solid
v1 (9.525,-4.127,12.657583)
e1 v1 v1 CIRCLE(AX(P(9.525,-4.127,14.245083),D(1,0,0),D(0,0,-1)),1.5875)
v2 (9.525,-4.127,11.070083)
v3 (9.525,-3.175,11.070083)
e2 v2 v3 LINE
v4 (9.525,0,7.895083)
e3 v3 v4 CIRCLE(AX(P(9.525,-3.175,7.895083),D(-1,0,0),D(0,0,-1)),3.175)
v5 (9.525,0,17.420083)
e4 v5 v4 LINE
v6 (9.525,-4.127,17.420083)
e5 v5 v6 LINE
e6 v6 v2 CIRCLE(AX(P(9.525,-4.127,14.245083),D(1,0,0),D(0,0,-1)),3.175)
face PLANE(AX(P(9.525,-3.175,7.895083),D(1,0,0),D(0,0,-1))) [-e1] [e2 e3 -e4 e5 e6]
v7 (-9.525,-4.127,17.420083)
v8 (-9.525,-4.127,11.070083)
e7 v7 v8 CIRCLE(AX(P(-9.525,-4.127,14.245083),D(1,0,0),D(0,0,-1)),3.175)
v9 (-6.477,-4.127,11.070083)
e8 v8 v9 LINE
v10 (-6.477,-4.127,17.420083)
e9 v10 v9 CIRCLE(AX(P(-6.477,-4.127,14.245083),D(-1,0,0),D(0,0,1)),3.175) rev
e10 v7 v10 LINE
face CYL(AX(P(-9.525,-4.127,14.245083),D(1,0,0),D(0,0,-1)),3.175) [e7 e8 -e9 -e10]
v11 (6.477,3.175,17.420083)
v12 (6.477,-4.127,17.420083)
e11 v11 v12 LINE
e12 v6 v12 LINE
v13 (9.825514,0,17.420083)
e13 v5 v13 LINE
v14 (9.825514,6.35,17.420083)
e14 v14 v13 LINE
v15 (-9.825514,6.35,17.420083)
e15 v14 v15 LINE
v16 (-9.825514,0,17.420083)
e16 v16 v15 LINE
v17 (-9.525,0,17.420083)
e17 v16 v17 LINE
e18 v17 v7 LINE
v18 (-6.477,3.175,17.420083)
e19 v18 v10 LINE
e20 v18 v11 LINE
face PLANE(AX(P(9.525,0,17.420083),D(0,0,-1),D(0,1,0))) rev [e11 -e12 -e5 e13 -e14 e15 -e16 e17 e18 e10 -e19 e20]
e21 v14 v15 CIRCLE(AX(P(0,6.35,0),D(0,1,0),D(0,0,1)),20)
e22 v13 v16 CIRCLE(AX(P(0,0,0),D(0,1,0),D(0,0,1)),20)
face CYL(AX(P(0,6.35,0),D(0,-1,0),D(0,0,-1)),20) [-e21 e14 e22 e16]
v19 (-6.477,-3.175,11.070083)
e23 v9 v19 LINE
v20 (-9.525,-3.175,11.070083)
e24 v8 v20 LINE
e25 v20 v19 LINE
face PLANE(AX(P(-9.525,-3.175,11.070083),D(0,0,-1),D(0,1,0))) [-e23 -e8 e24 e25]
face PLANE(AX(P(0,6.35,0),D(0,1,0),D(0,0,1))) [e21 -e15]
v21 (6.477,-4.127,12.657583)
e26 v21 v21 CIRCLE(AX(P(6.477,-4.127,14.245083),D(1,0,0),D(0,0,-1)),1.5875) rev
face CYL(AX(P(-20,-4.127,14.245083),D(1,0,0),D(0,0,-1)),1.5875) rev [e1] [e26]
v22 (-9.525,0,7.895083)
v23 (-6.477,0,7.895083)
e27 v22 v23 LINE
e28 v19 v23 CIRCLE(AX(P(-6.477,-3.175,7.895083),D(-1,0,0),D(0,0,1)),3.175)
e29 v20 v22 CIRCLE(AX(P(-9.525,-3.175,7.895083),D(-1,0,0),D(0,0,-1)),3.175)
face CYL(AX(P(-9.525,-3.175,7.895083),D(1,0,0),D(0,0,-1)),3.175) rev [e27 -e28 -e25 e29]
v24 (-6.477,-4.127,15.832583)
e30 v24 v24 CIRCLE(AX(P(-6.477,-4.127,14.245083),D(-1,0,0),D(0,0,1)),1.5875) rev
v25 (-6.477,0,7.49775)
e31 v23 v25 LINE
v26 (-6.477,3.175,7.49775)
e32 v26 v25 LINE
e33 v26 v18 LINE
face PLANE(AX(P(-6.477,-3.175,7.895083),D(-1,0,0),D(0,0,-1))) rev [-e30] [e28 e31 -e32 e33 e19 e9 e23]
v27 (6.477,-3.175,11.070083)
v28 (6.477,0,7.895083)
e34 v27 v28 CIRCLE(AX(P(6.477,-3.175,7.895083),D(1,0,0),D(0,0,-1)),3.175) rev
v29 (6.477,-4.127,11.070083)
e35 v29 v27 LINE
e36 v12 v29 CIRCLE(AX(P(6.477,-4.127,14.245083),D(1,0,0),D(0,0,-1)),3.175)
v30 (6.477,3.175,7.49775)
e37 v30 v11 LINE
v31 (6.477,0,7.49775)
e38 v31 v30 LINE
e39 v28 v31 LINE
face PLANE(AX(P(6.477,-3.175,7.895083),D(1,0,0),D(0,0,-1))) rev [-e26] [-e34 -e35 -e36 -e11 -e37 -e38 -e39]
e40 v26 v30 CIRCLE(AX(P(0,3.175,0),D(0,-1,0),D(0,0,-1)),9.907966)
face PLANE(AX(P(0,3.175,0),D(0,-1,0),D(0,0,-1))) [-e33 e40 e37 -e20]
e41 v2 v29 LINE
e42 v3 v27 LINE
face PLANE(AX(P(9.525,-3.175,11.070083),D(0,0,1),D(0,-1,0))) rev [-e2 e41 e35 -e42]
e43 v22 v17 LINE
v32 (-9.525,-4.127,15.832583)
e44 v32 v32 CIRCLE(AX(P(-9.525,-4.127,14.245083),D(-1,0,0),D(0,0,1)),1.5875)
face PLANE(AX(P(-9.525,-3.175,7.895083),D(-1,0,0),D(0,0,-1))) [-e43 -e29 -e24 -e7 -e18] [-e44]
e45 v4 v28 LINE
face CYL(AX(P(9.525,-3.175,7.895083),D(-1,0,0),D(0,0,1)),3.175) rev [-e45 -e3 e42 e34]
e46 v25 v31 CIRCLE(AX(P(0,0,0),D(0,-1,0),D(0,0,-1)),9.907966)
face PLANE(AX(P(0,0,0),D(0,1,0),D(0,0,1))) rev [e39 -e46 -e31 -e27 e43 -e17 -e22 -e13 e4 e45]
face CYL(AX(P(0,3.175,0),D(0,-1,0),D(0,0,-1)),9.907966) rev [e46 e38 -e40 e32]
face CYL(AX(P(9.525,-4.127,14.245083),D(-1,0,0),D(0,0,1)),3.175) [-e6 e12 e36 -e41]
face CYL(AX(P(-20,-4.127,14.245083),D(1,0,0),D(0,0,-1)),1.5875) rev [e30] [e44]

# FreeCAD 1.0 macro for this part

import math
import FreeCAD as App
import Part
import Sketcher
from FreeCAD import Vector
Q = App.Units.Quantity

doc = App.newDocument("Part")
body = doc.addObject("PartDesign::Body", "Body")

# Sketch on XZ plane
sketch1 = body.newObject("Sketcher::SketchObject", "Sketch")
sketch1.AttachmentSupport = (doc.getObject("XZ_Plane"), [""])
sketch1.MapMode = "FlatFace"
sketch1.addGeometry(Part.Circle(Vector(0, 0, 0), Vector(0, 0, 1), 20), False)
sketch1.addConstraint(Sketcher.Constraint("Coincident", 0, 3, -1, 1))
sketch1.addConstraint(Sketcher.Constraint("Diameter", 0, Q("40 mm")))
pad1 = body.newObject("PartDesign::Pad", "Pad")
pad1.Profile = sketch1
pad1.Length = Q("0.25 in")
pad1.Reversed = True

# Sketch on YZ plane
sketch2 = body.newObject("Sketcher::SketchObject", "Sketch001")
sketch2.AttachmentSupport = (doc.getObject("YZ_Plane"), [""])
sketch2.MapMode = "FlatFace"
sketch2.AttachmentOffset = App.Placement(Vector(0, 0, 0.25 * 25.4), App.Rotation())
sketch2.addGeometry(Part.LineSegment(Vector(0, 17.4, 0), Vector(-4.1, 17.4, 0)), False)
sketch2.addGeometry(Part.ArcOfCircle(Part.Circle(Vector(-4.1, 14.2, 0), Vector(0, 0, 1), 3.2), math.radians(90), math.radians(270)), False)
sketch2.addGeometry(Part.LineSegment(Vector(-4.1, 11.1, 0), Vector(-3.2, 11.1, 0)), False)
sketch2.addGeometry(Part.ArcOfCircle(Part.Circle(Vector(-3.2, 7.9, 0), Vector(0, 0, 1), 3.2), math.radians(0), math.radians(90)), False)
sketch2.addGeometry(Part.LineSegment(Vector(0, 7.9, 0), Vector(0, 5.8, 0)), False)
sketch2.addGeometry(Part.LineSegment(Vector(0, 5.8, 0), Vector(6.3, 5.8, 0)), False)
sketch2.addGeometry(Part.LineSegment(Vector(6.3, 5.8, 0), Vector(6.3, 11.1, 0)), False)
sketch2.addGeometry(Part.ArcOfCircle(Part.Circle(Vector(0, 11.1, 0), Vector(0, 0, 1), 6.3), math.radians(0), math.radians(90)), False)
sketch2.addConstraint(Sketcher.Constraint("Tangent", 0, 2, 1, 1))
sketch2.addConstraint(Sketcher.Constraint("Tangent", 1, 2, 2, 1))
sketch2.addConstraint(Sketcher.Constraint("Tangent", 2, 2, 3, 2))
sketch2.addConstraint(Sketcher.Constraint("Tangent", 3, 1, 4, 1))
sketch2.addConstraint(Sketcher.Constraint("Coincident", 4, 2, 5, 1))
sketch2.addConstraint(Sketcher.Constraint("Coincident", 5, 2, 6, 1))
sketch2.addConstraint(Sketcher.Constraint("Tangent", 6, 2, 7, 1))
sketch2.addConstraint(Sketcher.Constraint("Tangent", 7, 2, 0, 1))
sketch2.addConstraint(Sketcher.Constraint("Horizontal", 0))
sketch2.addConstraint(Sketcher.Constraint("Horizontal", 2))
sketch2.addConstraint(Sketcher.Constraint("Vertical", 4))
sketch2.addConstraint(Sketcher.Constraint("Horizontal", 5))
sketch2.addConstraint(Sketcher.Constraint("Vertical", 6))
sketch2.addConstraint(Sketcher.Constraint("Equal", 1, 3))
sketch2.addConstraint(Sketcher.Constraint("PointOnObject", 7, 3, -2))
sketch2.addConstraint(Sketcher.Constraint("PointOnObject", 3, 1, -2))
sketch2.addConstraint(Sketcher.Constraint("Horizontal", 7, 3, 1, 2))
sketch2.addConstraint(Sketcher.Constraint("Radius", 7, Q("0.25 in")))
sketch2.addConstraint(Sketcher.Constraint("DistanceX", 0, 2, 0, 1, Q("4.127 mm")))
sketch2.addConstraint(Sketcher.Constraint("DistanceY", 4, 2, 4, 1, Q("2.045922 mm")))
sketch2.addConstraint(Sketcher.Constraint("DistanceY", -1, 1, 4, 2, Q("5.849161 mm")))
pad2 = body.newObject("PartDesign::Pad", "Pad001")
pad2.Profile = sketch2
pad2.Length = Q("0.125 in")
doc.recompute()

mirrored = body.newObject("PartDesign::Mirrored", "Mirrored")
mirrored.Originals = [pad2]
mirrored.MirrorPlane = (doc.getObject("YZ_Plane"), [""])
body.Tip = mirrored

# Sketch on YZ plane
sketch3 = body.newObject("Sketcher::SketchObject", "Sketch002")
sketch3.AttachmentSupport = (doc.getObject("YZ_Plane"), [""])
sketch3.MapMode = "FlatFace"
sketch3.AttachmentOffset = App.Placement(Vector(0, 0, 0.375 * 25.4), App.Rotation())
sketch3.addGeometry(Part.Circle(Vector(-4.1, 14.2, 0), Vector(0, 0, 1), 1.6), False)
sketch3.addConstraint(Sketcher.Constraint("Diameter", 0, Q("0.125 in")))
sketch3.addConstraint(Sketcher.Constraint("DistanceX", 0, 3, -1, 1, Q("4.127 mm")))
sketch3.addConstraint(Sketcher.Constraint("DistanceY", -1, 1, 0, 3, Q("14.245083 mm")))
pocket1 = body.newObject("PartDesign::Pocket", "Pocket")
pocket1.Profile = sketch3
pocket1.Type = "ThroughAll"

# Sketch on XZ plane
sketch4 = body.newObject("Sketcher::SketchObject", "Sketch003")
sketch4.AttachmentSupport = (doc.getObject("XZ_Plane"), [""])
sketch4.MapMode = "FlatFace"
sketch4.addGeometry(Part.LineSegment(Vector(6, 8, 0), Vector(6, 19, 0)), False)
sketch4.addGeometry(Part.ArcOfCircle(Part.Circle(Vector(0, 0, 0), Vector(0, 0, 1), 20), math.radians(71), math.radians(109)), False)
sketch4.addGeometry(Part.LineSegment(Vector(-6, 19, 0), Vector(-6, 8, 0)), False)
sketch4.addGeometry(Part.ArcOfCircle(Part.Circle(Vector(0, 0, 0), Vector(0, 0, 1), 10), math.radians(130), math.radians(410)), False)
sketch4.addConstraint(Sketcher.Constraint("Coincident", 0, 2, 1, 1))
sketch4.addConstraint(Sketcher.Constraint("Coincident", 1, 2, 2, 1))
sketch4.addConstraint(Sketcher.Constraint("Coincident", 2, 2, 3, 1))
sketch4.addConstraint(Sketcher.Constraint("Coincident", 3, 2, 0, 1))
sketch4.addConstraint(Sketcher.Constraint("Vertical", 0))
sketch4.addConstraint(Sketcher.Constraint("Vertical", 2))
sketch4.addConstraint(Sketcher.Constraint("Coincident", 1, 3, -1, 1))
sketch4.addConstraint(Sketcher.Constraint("Coincident", 3, 3, -1, 1))
sketch4.addConstraint(Sketcher.Constraint("Horizontal", 0, 2, 1, 2))
sketch4.addConstraint(Sketcher.Constraint("DistanceX", 1, 2, 0, 2, Q("0.5 in")))
sketch4.addConstraint(Sketcher.Constraint("Radius", 1, Q("20 mm")))
sketch4.addConstraint(Sketcher.Constraint("Radius", 3, Q("9.907966 mm")))
pocket2 = body.newObject("PartDesign::Pocket", "Pocket001")
pocket2.Profile = sketch4
pocket2.Length = Q("0.125 in")

# Sketch on YZ plane
sketch5 = body.newObject("Sketcher::SketchObject", "Sketch004")
sketch5.AttachmentSupport = (doc.getObject("YZ_Plane"), [""])
sketch5.MapMode = "FlatFace"
sketch5.AttachmentOffset = App.Placement(Vector(0, 0, 0.25 * 25.4), App.Rotation())
sketch5.addGeometry(Part.LineSegment(Vector(12, 26, 0), Vector(0, 26, 0)), False)
sketch5.addGeometry(Part.LineSegment(Vector(0, 26, 0), Vector(0, 17, 0)), False)
sketch5.addGeometry(Part.LineSegment(Vector(0, 17, 0), Vector(12, 17, 0)), False)
sketch5.addGeometry(Part.LineSegment(Vector(12, 17, 0), Vector(12, 26, 0)), False)
sketch5.addConstraint(Sketcher.Constraint("Coincident", 0, 2, 1, 1))
sketch5.addConstraint(Sketcher.Constraint("Coincident", 1, 2, 2, 1))
sketch5.addConstraint(Sketcher.Constraint("Coincident", 2, 2, 3, 1))
sketch5.addConstraint(Sketcher.Constraint("Coincident", 3, 2, 0, 1))
sketch5.addConstraint(Sketcher.Constraint("Horizontal", 0))
sketch5.addConstraint(Sketcher.Constraint("Vertical", 1))
sketch5.addConstraint(Sketcher.Constraint("Horizontal", 2))
sketch5.addConstraint(Sketcher.Constraint("Vertical", 3))
sketch5.addConstraint(Sketcher.Constraint("PointOnObject", 0, 2, -2))
sketch5.addConstraint(Sketcher.Constraint("DistanceX", 0, 2, 0, 1, Q("11.755238 mm")))
sketch5.addConstraint(Sketcher.Constraint("DistanceY", 1, 2, 1, 1, Q("9.069474 mm")))
sketch5.addConstraint(Sketcher.Constraint("DistanceY", -1, 1, 0, 2, Q("26.489556 mm")))
pocket3 = body.newObject("PartDesign::Pocket", "Pocket002")
pocket3.Profile = sketch5
pocket3.Type = "ThroughAll"
pocket3.Midplane = True

# Sketch on YZ plane
sketch6 = body.newObject("Sketcher::SketchObject", "Sketch005")
sketch6.AttachmentSupport = (doc.getObject("YZ_Plane"), [""])
sketch6.MapMode = "FlatFace"
sketch6.addGeometry(Part.LineSegment(Vector(0, 6.6, 0), Vector(3.2, 6.6, 0)), False)
sketch6.addGeometry(Part.LineSegment(Vector(3.2, 6.6, 0), Vector(3.2, 17.4, 0)), False)
sketch6.addGeometry(Part.LineSegment(Vector(3.2, 17.4, 0), Vector(-4.1, 17.4, 0)), False)
sketch6.addGeometry(Part.ArcOfCircle(Part.Circle(Vector(-4.1, 14.2, 0), Vector(0, 0, 1), 3.2), math.radians(90), math.radians(270)), False)
sketch6.addGeometry(Part.LineSegment(Vector(-4.1, 11.1, 0), Vector(-3.2, 11.1, 0)), False)
sketch6.addGeometry(Part.ArcOfCircle(Part.Circle(Vector(-3.2, 7.9, 0), Vector(0, 0, 1), 3.2), math.radians(0), math.radians(90)), False)
sketch6.addGeometry(Part.LineSegment(Vector(0, 7.9, 0), Vector(0, 6.6, 0)), False)
sketch6.addConstraint(Sketcher.Constraint("Coincident", 0, 2, 1, 1))
sketch6.addConstraint(Sketcher.Constraint("Coincident", 1, 2, 2, 1))
sketch6.addConstraint(Sketcher.Constraint("Tangent", 2, 2, 3, 1))
sketch6.addConstraint(Sketcher.Constraint("Tangent", 3, 2, 4, 1))
sketch6.addConstraint(Sketcher.Constraint("Tangent", 4, 2, 5, 2))
sketch6.addConstraint(Sketcher.Constraint("Tangent", 5, 1, 6, 1))
sketch6.addConstraint(Sketcher.Constraint("Coincident", 6, 2, 0, 1))
sketch6.addConstraint(Sketcher.Constraint("Horizontal", 0))
sketch6.addConstraint(Sketcher.Constraint("Vertical", 1))
sketch6.addConstraint(Sketcher.Constraint("Horizontal", 2))
sketch6.addConstraint(Sketcher.Constraint("Horizontal", 4))
sketch6.addConstraint(Sketcher.Constraint("Vertical", 6))
sketch6.addConstraint(Sketcher.Constraint("Equal", 3, 5))
sketch6.addConstraint(Sketcher.Constraint("PointOnObject", 5, 1, -2))
sketch6.addConstraint(Sketcher.Constraint("Radius", 3, Q("0.125 in")))
sketch6.addConstraint(Sketcher.Constraint("DistanceX", 0, 1, 0, 2, Q("0.125 in")))
sketch6.addConstraint(Sketcher.Constraint("DistanceX", 2, 2, 2, 1, Q("7.302 mm")))
sketch6.addConstraint(Sketcher.Constraint("DistanceY", 1, 1, 1, 2, Q("10.773168 mm")))
sketch6.addConstraint(Sketcher.Constraint("DistanceY", -1, 1, 3, 3, Q("14.245083 mm")))
pocket4 = body.newObject("PartDesign::Pocket", "Pocket003")
pocket4.Profile = sketch6
pocket4.Type = "TwoLengths"
pocket4.Length = Q("0.255 in")
pocket4.Length2 = Q("0.255 in")
pocket4.Reversed = True

doc.recompute()
